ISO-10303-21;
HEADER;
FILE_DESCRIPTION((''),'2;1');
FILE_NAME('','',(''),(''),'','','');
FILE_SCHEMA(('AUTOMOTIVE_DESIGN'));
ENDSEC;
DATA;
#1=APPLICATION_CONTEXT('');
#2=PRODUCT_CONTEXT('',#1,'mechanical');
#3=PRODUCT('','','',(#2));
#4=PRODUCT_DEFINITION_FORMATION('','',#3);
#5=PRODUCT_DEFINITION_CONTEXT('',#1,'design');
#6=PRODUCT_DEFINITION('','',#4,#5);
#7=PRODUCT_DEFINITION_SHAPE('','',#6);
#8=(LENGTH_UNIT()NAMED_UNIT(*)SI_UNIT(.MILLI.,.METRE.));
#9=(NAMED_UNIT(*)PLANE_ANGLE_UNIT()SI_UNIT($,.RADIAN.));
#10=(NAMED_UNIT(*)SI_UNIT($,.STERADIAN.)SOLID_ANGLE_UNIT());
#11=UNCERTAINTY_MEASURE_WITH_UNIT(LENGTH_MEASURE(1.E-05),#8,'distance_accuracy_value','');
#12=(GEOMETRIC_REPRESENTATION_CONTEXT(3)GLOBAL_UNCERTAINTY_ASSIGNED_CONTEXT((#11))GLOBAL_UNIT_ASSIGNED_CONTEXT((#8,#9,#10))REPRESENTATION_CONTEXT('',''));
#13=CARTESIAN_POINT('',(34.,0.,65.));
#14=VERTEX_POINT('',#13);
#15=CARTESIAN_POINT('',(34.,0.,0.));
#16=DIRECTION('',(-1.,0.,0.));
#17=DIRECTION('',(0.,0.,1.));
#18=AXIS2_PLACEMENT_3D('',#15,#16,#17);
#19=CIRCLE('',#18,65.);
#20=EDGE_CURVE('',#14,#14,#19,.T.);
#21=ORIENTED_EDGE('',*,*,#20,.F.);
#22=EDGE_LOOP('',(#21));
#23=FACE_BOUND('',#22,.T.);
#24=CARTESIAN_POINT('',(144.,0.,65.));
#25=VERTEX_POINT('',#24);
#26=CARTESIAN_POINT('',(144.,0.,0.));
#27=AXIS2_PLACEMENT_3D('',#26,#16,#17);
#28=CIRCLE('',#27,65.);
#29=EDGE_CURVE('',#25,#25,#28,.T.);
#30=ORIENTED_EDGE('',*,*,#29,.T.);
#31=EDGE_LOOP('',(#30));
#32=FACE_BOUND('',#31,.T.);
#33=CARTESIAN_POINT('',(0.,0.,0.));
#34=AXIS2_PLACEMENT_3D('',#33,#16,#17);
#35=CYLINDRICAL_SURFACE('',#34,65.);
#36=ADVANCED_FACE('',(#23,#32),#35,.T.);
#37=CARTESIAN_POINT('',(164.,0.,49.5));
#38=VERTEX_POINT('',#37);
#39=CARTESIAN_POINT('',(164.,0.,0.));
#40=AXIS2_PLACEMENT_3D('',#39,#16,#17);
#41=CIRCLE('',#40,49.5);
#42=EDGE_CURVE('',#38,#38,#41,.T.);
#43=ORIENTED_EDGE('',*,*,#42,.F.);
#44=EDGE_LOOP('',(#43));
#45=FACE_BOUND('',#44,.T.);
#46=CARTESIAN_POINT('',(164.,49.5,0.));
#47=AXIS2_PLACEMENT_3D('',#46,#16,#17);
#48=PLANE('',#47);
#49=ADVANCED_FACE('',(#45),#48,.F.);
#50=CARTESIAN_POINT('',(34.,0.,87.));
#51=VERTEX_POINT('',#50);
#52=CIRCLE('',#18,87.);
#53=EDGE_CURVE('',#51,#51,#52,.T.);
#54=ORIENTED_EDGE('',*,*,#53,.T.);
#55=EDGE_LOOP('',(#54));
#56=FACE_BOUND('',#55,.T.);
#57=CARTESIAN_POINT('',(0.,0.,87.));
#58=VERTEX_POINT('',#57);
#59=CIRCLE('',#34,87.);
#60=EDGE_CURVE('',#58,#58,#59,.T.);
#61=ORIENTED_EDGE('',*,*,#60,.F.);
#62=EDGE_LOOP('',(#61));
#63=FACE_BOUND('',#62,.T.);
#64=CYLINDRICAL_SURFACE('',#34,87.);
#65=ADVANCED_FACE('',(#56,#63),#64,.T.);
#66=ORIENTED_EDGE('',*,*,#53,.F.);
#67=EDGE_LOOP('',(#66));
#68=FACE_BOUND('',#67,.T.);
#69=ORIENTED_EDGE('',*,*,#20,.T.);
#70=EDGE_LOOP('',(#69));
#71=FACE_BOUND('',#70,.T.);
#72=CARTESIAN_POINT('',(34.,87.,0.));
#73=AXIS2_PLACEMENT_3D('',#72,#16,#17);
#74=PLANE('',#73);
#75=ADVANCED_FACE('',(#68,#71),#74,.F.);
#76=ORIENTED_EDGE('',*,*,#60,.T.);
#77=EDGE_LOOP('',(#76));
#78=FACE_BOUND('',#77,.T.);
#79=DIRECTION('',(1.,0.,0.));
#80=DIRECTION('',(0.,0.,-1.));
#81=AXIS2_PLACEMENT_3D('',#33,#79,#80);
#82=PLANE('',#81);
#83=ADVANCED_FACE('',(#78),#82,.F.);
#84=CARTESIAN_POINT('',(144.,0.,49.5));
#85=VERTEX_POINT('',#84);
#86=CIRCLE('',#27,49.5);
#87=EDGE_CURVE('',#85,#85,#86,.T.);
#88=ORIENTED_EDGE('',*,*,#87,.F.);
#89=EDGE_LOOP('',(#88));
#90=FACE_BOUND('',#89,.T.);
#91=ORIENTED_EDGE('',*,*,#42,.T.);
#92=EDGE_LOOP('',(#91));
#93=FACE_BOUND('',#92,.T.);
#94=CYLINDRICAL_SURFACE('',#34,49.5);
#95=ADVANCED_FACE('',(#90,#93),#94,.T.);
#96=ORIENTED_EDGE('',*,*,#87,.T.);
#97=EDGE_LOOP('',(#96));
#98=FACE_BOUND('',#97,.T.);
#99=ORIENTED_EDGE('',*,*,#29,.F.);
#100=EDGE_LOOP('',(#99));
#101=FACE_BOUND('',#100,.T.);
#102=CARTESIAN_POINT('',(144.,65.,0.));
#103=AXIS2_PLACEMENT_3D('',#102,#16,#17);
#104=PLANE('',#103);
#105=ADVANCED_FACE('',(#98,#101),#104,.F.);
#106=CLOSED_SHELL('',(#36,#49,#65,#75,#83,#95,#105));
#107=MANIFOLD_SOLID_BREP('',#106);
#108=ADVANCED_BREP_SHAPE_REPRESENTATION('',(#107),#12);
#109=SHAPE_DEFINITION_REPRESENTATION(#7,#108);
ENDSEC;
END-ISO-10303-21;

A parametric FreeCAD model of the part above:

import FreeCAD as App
import Part
import Sketcher

V = App.Vector


def add_polygon(sketch, points):
    """Adds a closed chain of lines whose ends are joined by coincident constraints."""
    first, n = sketch.GeometryCount, len(points)
    for a, b in zip(points, points[1:] + points[:1]):
        sketch.addGeometry(Part.LineSegment(App.Vector(*a, 0), App.Vector(*b, 0)), False)
    for i in range(n):
        sketch.addConstraint(Sketcher.Constraint("Coincident", first + i, 2, first + (i + 1) % n, 1))

doc = App.newDocument("Part")
body = doc.addObject("PartDesign::Body", "Body")

# Sketch on XY plane
sketch1 = doc.addObject("Sketcher::SketchObject", "Sketch")
body.addObject(sketch1)
sketch1.AttachmentSupport = (doc.XY_Plane, [""])
sketch1.MapMode = "FlatFace"
add_polygon(sketch1, [(0, 87), (0, 0), (164, 0), (164, 50), (144, 50), (144, 65), (34, 65), (34, 87)])  # lines 0-7
sketch1.addConstraint([
    Sketcher.Constraint("Vertical", 0),
    Sketcher.Constraint("Horizontal", 1),
    Sketcher.Constraint("Vertical", 2),
    Sketcher.Constraint("Horizontal", 3),
    Sketcher.Constraint("Vertical", 4),
    Sketcher.Constraint("Horizontal", 5),
    Sketcher.Constraint("Vertical", 6),
    Sketcher.Constraint("Horizontal", 7),
    Sketcher.Constraint("Coincident", 0, 2, -1, 1),
    Sketcher.Constraint("DistanceX", 1, 1, 1, 2, 164.0),
    Sketcher.Constraint("DistanceX", 3, 2, 3, 1, 20.0),
    Sketcher.Constraint("DistanceX", 5, 2, 5, 1, 110.0),
    Sketcher.Constraint("DistanceY", 0, 2, 0, 1, 87.0),
    Sketcher.Constraint("DistanceY", 6, 1, 6, 2, 22.0),
    Sketcher.Constraint("DistanceY", 2, 1, 2, 2, 49.5),
])
revolution = doc.addObject("PartDesign::Revolution", "Revolution")
body.addObject(revolution)
revolution.Profile = sketch1
revolution.ReferenceAxis = (sketch1, ["H_Axis"])
revolution.Angle = 360

doc.recompute()
